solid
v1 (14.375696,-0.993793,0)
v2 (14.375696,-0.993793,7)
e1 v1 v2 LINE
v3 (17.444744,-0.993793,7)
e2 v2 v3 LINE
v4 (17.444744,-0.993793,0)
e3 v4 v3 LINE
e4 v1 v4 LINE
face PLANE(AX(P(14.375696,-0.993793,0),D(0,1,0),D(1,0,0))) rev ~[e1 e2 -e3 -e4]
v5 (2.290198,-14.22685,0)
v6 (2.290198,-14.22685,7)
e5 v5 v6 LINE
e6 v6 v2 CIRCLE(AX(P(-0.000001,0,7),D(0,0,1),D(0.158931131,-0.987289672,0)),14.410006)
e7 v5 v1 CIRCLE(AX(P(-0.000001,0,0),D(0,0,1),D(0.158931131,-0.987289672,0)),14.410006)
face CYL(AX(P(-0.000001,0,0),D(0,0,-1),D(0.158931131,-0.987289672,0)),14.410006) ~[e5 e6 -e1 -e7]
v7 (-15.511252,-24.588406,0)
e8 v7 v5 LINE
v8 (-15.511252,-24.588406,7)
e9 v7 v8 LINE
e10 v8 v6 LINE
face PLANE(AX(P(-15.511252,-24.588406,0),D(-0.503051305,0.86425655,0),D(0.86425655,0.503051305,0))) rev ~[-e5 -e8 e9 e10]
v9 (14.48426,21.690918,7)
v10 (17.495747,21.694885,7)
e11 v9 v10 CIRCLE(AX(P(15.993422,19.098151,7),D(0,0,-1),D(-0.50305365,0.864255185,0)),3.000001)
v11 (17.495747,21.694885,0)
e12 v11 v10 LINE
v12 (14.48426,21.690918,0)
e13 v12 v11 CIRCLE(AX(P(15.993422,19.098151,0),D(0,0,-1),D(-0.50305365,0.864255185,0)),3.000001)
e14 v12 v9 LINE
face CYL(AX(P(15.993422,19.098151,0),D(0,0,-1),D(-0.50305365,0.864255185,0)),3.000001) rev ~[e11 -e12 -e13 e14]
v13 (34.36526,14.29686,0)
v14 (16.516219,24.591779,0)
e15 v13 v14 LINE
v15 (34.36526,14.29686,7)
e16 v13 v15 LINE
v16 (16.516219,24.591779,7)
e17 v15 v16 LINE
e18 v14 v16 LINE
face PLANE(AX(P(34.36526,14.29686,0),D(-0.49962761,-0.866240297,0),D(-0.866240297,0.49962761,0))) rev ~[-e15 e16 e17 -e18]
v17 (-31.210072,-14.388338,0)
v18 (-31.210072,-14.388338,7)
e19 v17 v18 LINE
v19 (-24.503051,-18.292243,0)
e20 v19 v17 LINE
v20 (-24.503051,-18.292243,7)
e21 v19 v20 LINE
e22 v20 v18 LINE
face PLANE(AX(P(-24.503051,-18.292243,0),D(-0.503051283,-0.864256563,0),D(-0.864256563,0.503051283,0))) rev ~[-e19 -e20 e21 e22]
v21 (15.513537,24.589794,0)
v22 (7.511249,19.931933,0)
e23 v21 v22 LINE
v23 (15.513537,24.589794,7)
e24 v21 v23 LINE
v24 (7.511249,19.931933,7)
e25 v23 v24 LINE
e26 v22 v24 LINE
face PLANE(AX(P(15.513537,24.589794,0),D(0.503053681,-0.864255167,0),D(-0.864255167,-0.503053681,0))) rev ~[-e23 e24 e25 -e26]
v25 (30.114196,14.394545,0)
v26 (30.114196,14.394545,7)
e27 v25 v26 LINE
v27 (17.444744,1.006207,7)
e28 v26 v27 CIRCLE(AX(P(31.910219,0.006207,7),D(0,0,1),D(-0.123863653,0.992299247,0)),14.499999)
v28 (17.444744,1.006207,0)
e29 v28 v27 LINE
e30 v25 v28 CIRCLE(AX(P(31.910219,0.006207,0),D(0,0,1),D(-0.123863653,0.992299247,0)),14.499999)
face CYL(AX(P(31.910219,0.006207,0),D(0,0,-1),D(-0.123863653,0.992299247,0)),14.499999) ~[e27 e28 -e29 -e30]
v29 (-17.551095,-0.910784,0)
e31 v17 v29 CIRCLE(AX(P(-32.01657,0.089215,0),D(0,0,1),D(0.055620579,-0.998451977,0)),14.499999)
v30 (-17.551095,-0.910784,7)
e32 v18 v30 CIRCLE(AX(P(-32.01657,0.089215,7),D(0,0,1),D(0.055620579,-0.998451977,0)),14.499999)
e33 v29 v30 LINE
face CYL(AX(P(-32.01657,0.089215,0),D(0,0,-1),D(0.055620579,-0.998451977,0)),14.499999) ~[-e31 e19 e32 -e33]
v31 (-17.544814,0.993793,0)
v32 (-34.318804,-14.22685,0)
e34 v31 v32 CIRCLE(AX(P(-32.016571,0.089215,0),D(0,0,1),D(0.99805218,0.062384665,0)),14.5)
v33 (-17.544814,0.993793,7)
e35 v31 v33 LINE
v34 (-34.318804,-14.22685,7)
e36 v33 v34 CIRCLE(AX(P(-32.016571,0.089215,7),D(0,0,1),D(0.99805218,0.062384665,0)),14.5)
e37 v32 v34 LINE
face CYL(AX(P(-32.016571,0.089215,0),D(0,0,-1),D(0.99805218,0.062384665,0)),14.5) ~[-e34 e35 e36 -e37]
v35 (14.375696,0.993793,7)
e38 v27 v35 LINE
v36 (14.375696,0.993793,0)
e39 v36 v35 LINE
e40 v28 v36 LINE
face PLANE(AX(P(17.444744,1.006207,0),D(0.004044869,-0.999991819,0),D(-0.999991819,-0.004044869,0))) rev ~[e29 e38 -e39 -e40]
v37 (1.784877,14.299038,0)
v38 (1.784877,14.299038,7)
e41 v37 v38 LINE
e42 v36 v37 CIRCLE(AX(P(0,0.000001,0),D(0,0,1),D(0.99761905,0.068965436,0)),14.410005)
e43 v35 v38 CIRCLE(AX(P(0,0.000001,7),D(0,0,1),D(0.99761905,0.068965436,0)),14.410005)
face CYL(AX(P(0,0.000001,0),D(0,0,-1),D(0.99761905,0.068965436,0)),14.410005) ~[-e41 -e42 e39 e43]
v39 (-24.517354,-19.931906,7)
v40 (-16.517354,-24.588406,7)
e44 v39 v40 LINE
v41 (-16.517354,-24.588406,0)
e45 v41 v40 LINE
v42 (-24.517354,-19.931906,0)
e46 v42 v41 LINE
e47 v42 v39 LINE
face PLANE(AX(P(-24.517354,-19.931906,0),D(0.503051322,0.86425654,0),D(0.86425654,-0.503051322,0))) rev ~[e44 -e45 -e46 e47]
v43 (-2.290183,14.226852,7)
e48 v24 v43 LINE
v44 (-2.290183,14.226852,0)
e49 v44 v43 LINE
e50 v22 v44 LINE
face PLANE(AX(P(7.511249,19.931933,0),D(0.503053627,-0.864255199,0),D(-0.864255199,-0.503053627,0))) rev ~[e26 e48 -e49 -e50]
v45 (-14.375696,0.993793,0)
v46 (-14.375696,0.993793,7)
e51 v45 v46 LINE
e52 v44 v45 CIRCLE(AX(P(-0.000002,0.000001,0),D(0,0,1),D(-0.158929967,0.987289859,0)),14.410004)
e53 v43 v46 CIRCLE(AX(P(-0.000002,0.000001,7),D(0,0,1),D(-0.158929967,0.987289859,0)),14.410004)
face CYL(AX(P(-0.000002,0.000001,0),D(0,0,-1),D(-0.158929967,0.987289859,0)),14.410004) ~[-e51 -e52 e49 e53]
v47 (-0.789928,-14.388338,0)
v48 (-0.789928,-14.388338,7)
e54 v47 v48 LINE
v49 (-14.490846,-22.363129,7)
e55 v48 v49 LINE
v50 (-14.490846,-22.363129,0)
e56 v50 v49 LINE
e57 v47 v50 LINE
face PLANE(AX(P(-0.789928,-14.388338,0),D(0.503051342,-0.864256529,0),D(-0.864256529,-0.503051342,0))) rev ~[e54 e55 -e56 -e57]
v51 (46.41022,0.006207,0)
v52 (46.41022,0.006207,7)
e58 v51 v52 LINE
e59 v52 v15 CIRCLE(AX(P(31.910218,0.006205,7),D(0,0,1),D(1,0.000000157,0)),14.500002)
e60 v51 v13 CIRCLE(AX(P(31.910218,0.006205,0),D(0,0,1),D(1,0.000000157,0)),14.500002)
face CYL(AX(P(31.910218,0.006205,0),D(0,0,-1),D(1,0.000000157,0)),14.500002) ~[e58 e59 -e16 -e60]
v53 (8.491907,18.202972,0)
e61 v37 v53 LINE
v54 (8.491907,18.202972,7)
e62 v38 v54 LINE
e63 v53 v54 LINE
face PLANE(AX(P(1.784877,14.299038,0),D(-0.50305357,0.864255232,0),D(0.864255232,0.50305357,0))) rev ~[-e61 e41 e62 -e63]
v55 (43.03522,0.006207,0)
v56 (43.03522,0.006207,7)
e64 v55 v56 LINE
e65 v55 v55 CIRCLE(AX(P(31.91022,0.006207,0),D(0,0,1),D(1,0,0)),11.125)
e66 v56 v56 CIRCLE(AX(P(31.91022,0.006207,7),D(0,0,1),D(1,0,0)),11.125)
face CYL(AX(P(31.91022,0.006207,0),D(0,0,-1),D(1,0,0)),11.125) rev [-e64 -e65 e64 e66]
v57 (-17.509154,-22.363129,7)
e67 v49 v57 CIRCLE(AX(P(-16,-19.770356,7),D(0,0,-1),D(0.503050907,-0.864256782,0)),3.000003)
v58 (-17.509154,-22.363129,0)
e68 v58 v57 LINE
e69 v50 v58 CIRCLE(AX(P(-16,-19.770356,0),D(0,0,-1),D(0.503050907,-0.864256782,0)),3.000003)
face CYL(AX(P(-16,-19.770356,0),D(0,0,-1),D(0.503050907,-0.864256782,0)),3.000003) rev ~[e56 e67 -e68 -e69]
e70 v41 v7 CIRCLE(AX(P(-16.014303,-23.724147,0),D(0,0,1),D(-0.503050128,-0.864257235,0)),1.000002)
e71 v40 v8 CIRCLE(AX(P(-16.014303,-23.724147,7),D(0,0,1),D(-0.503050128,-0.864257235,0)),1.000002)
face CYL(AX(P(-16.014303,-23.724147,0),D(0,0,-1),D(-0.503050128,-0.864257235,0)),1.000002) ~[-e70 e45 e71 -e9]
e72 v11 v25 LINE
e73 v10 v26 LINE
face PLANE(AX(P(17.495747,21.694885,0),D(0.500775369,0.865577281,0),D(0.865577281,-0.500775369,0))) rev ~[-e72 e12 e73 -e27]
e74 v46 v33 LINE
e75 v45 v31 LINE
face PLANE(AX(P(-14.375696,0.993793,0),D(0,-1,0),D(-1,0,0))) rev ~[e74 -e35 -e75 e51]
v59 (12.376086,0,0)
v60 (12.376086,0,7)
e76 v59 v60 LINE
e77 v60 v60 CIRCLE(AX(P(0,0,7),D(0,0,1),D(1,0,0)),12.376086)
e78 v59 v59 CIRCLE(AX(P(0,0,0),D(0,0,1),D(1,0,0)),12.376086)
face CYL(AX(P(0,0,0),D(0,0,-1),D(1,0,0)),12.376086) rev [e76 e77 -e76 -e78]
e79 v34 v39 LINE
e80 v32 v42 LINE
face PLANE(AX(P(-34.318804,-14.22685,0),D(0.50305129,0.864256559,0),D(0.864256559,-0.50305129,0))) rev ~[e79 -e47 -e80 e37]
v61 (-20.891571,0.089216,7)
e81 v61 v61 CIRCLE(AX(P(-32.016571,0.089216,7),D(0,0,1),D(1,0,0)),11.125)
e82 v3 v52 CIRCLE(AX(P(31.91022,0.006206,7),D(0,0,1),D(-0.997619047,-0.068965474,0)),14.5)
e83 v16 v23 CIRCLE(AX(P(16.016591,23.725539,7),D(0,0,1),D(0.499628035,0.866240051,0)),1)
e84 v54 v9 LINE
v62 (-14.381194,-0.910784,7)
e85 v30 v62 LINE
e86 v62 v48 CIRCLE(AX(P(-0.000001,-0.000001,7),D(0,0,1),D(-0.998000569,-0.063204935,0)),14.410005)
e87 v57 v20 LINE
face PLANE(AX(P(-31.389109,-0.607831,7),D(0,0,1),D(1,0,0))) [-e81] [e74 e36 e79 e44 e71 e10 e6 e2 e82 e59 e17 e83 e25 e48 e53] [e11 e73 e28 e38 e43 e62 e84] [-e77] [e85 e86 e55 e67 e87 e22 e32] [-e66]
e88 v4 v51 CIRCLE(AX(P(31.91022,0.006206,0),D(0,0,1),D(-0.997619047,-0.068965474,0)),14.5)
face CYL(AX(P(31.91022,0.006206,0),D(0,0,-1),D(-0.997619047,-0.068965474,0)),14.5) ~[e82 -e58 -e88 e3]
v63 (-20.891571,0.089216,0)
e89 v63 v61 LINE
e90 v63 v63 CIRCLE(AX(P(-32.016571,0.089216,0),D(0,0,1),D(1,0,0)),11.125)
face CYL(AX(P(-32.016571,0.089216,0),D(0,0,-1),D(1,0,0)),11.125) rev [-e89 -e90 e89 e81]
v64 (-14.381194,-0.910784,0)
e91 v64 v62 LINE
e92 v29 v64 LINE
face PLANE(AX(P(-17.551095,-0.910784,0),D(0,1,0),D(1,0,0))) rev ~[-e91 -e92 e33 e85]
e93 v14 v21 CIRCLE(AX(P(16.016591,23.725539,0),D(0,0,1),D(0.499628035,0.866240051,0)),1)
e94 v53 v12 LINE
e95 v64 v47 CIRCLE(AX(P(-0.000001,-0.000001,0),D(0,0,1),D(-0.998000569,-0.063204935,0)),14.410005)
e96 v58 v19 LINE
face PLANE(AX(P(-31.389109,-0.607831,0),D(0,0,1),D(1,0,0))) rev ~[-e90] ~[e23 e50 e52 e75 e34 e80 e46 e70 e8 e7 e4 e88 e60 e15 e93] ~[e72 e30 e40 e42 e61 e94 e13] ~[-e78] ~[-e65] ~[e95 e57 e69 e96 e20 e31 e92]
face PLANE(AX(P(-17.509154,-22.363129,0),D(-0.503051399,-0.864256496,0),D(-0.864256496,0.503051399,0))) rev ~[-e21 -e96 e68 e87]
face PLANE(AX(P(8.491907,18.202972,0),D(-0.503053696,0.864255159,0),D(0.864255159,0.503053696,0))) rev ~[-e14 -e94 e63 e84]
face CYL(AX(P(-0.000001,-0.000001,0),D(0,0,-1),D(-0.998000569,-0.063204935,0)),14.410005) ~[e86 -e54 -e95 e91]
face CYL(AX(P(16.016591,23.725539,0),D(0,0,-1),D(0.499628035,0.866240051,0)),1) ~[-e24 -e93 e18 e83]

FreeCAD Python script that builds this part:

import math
import FreeCAD as App
import Part
import Sketcher

V = App.Vector
Q = App.Units.Quantity

doc = App.newDocument("Part")
body = doc.addObject("PartDesign::Body", "Body")

# Sketch on XY plane
sketch1 = body.newObject("Sketcher::SketchObject", "Sketch")
sketch1.AttachmentSupport = (doc.getObject("XY_Plane"), [""])
sketch1.MapMode = "FlatFace"
sketch1.addGeometry(Part.ArcOfCircle(Part.Circle(V(-32, 0.1, 0), V(0, 0, 1), 14.5), math.radians(4), math.radians(261)), False)
sketch1.addGeometry(Part.LineSegment(V(-34.3, -14.2, 0), V(-24.5, -19.9, 0)), False)
sketch1.addGeometry(Part.LineSegment(V(-24.5, -19.9, 0), V(-16.5, -24.6, 0)), False)
sketch1.addGeometry(Part.ArcOfCircle(Part.Circle(V(-16, -23.7, 0), V(0, 0, 1), 1), math.radians(-120), math.radians(-60)), False)
sketch1.addGeometry(Part.LineSegment(V(-15.5, -24.6, 0), V(2.3, -14.2, 0)), False)
sketch1.addGeometry(Part.ArcOfCircle(Part.Circle(V(0, 0, 0), V(0, 0, 1), 14.4), math.radians(-81), math.radians(-4)), False)
sketch1.addGeometry(Part.LineSegment(V(14.4, -1, 0), V(17.4, -1, 0)), False)
sketch1.addGeometry(Part.ArcOfCircle(Part.Circle(V(31.9, 0, 0), V(0, 0, 1), 14.5), math.radians(-176), math.radians(0)), False)
sketch1.addGeometry(Part.ArcOfCircle(Part.Circle(V(31.9, 0, 0), V(0, 0, 1), 14.5), math.radians(0), math.radians(80)), False)
sketch1.addGeometry(Part.LineSegment(V(34.4, 14.3, 0), V(16.5, 24.6, 0)), False)
sketch1.addGeometry(Part.ArcOfCircle(Part.Circle(V(16, 23.7, 0), V(0, 0, 1), 1), math.radians(60), math.radians(120)), False)
sketch1.addGeometry(Part.LineSegment(V(15.5, 24.6, 0), V(7.5, 19.9, 0)), False)
sketch1.addGeometry(Part.LineSegment(V(7.5, 19.9, 0), V(-2.3, 14.2, 0)), False)
sketch1.addGeometry(Part.ArcOfCircle(Part.Circle(V(0, 0, 0), V(0, 0, 1), 14.4), math.radians(99), math.radians(176)), False)
sketch1.addGeometry(Part.LineSegment(V(-14.4, 1, 0), V(-17.5, 1, 0)), False)
sketch1.addGeometry(Part.ArcOfCircle(Part.Circle(V(0, 0, 0), V(0, 0, 1), 14.4), math.radians(-176), math.radians(-93)), False)
sketch1.addGeometry(Part.LineSegment(V(-0.8, -14.4, 0), V(-14.5, -22.4, 0)), False)
sketch1.addGeometry(Part.ArcOfCircle(Part.Circle(V(-16, -19.8, 0), V(0, 0, 1), 3), math.radians(-120), math.radians(-60)), False)
sketch1.addGeometry(Part.LineSegment(V(-17.5, -22.4, 0), V(-24.5, -18.3, 0)), False)
sketch1.addGeometry(Part.LineSegment(V(-24.5, -18.3, 0), V(-31.2, -14.4, 0)), False)
sketch1.addGeometry(Part.ArcOfCircle(Part.Circle(V(-32, 0.1, 0), V(0, 0, 1), 14.5), math.radians(-87), math.radians(-4)), False)
sketch1.addGeometry(Part.LineSegment(V(-17.6, -0.9, 0), V(-14.4, -0.9, 0)), False)
sketch1.addGeometry(Part.ArcOfCircle(Part.Circle(V(31.9, 0, 0), V(0, 0, 1), 14.5), math.radians(97), math.radians(176)), False)
sketch1.addGeometry(Part.LineSegment(V(17.4, 1, 0), V(14.4, 1, 0)), False)
sketch1.addGeometry(Part.ArcOfCircle(Part.Circle(V(0, 0, 0), V(0, 0, 1), 14.4), math.radians(4), math.radians(83)), False)
sketch1.addGeometry(Part.LineSegment(V(1.8, 14.3, 0), V(8.5, 18.2, 0)), False)
sketch1.addGeometry(Part.LineSegment(V(8.5, 18.2, 0), V(14.5, 21.7, 0)), False)
sketch1.addGeometry(Part.ArcOfCircle(Part.Circle(V(16, 19.1, 0), V(0, 0, 1), 3), math.radians(60), math.radians(120)), False)
sketch1.addGeometry(Part.LineSegment(V(17.5, 21.7, 0), V(30.1, 14.4, 0)), False)
sketch1.addGeometry(Part.Circle(V(-32, 0.1, 0), V(0, 0, 1), 11.1), False)
sketch1.addGeometry(Part.Circle(V(0, 0, 0), V(0, 0, 1), 12.4), False)
sketch1.addGeometry(Part.Circle(V(31.9, 0, 0), V(0, 0, 1), 11.1), False)
sketch1.addConstraint(Sketcher.Constraint("Coincident", 0, 2, 1, 1))
sketch1.addConstraint(Sketcher.Constraint("Coincident", 1, 2, 2, 1))
sketch1.addConstraint(Sketcher.Constraint("Tangent", 2, 2, 3, 1))
sketch1.addConstraint(Sketcher.Constraint("Tangent", 3, 2, 4, 1))
sketch1.addConstraint(Sketcher.Constraint("Coincident", 4, 2, 5, 1))
sketch1.addConstraint(Sketcher.Constraint("Coincident", 5, 2, 6, 1))
sketch1.addConstraint(Sketcher.Constraint("Coincident", 6, 2, 7, 1))
sketch1.addConstraint(Sketcher.Constraint("Tangent", 7, 2, 8, 1))
sketch1.addConstraint(Sketcher.Constraint("Coincident", 8, 2, 9, 1))
sketch1.addConstraint(Sketcher.Constraint("Tangent", 9, 2, 10, 1))
sketch1.addConstraint(Sketcher.Constraint("Tangent", 10, 2, 11, 1))
sketch1.addConstraint(Sketcher.Constraint("Coincident", 11, 2, 12, 1))
sketch1.addConstraint(Sketcher.Constraint("Coincident", 12, 2, 13, 1))
sketch1.addConstraint(Sketcher.Constraint("Coincident", 13, 2, 14, 1))
sketch1.addConstraint(Sketcher.Constraint("Coincident", 14, 2, 0, 1))
sketch1.addConstraint(Sketcher.Constraint("Coincident", 15, 2, 16, 1))
sketch1.addConstraint(Sketcher.Constraint("Tangent", 16, 2, 17, 2))
sketch1.addConstraint(Sketcher.Constraint("Tangent", 17, 1, 18, 1))
sketch1.addConstraint(Sketcher.Constraint("Coincident", 18, 2, 19, 1))
sketch1.addConstraint(Sketcher.Constraint("Coincident", 19, 2, 20, 1))
sketch1.addConstraint(Sketcher.Constraint("Coincident", 20, 2, 21, 1))
sketch1.addConstraint(Sketcher.Constraint("Coincident", 21, 2, 15, 1))
sketch1.addConstraint(Sketcher.Constraint("Coincident", 22, 2, 23, 1))
sketch1.addConstraint(Sketcher.Constraint("Coincident", 23, 2, 24, 1))
sketch1.addConstraint(Sketcher.Constraint("Coincident", 24, 2, 25, 1))
sketch1.addConstraint(Sketcher.Constraint("Coincident", 25, 2, 26, 1))
sketch1.addConstraint(Sketcher.Constraint("Tangent", 26, 2, 27, 2))
sketch1.addConstraint(Sketcher.Constraint("Tangent", 27, 1, 28, 1))
sketch1.addConstraint(Sketcher.Constraint("Coincident", 28, 2, 22, 1))
sketch1.addConstraint(Sketcher.Constraint("Horizontal", 6))
sketch1.addConstraint(Sketcher.Constraint("Horizontal", 14))
sketch1.addConstraint(Sketcher.Constraint("Horizontal", 21))
sketch1.addConstraint(Sketcher.Constraint("Coincident", 5, 3, -1, 1))
sketch1.addConstraint(Sketcher.Constraint("Coincident", 13, 3, -1, 1))
sketch1.addConstraint(Sketcher.Constraint("Coincident", 15, 3, -1, 1))
sketch1.addConstraint(Sketcher.Constraint("Coincident", 24, 3, -1, 1))
sketch1.addConstraint(Sketcher.Constraint("Coincident", 30, 3, -1, 1))
sketch1.addConstraint(Sketcher.Constraint("Coincident", 20, 3, 0, 3))
sketch1.addConstraint(Sketcher.Constraint("Coincident", 22, 3, 7, 3))
sketch1.addConstraint(Sketcher.Constraint("Coincident", 29, 3, 0, 3))
sketch1.addConstraint(Sketcher.Constraint("Coincident", 31, 3, 7, 3))
sketch1.addConstraint(Sketcher.Constraint("Equal", 0, 7))
sketch1.addConstraint(Sketcher.Constraint("Equal", 0, 8))
sketch1.addConstraint(Sketcher.Constraint("Equal", 3, 10))
sketch1.addConstraint(Sketcher.Constraint("Equal", 13, 15))
sketch1.addConstraint(Sketcher.Constraint("Equal", 7, 20))
sketch1.addConstraint(Sketcher.Constraint("Equal", 20, 22))
sketch1.addConstraint(Sketcher.Constraint("Equal", 15, 24))
sketch1.addConstraint(Sketcher.Constraint("Equal", 17, 27))
sketch1.addConstraint(Sketcher.Constraint("Equal", 29, 31))
sketch1.addConstraint(Sketcher.Constraint("Symmetric", 5, 2, 13, 2, -1, 1))
sketch1.addConstraint(Sketcher.Constraint("Parallel", 1, 2))
sketch1.addConstraint(Sketcher.Constraint("Parallel", 11, 12))
sketch1.addConstraint(Sketcher.Constraint("Parallel", 4, 16))
sketch1.addConstraint(Sketcher.Constraint("Parallel", 2, 18))
sketch1.addConstraint(Sketcher.Constraint("Parallel", 18, 19))
sketch1.addConstraint(Sketcher.Constraint("Parallel", 12, 25))
sketch1.addConstraint(Sketcher.Constraint("Parallel", 25, 26))
sketch1.addConstraint(Sketcher.Constraint("Horizontal", 2, 2, 3, 2))
sketch1.addConstraint(Sketcher.Constraint("Horizontal", 0, 2, 4, 2))
sketch1.addConstraint(Sketcher.Constraint("Horizontal", 31, 3, 7, 2))
sketch1.addConstraint(Sketcher.Constraint("Horizontal", 15, 2, 19, 2))
sketch1.addConstraint(Sketcher.Constraint("Horizontal", 14, 2, 23, 2))
sketch1.addConstraint(Sketcher.Constraint("Vertical", 6, 2, 22, 2))
sketch1.addConstraint(Sketcher.Constraint("Radius", 3, Q("1.000002 mm")))
sketch1.addConstraint(Sketcher.Constraint("Radius", 27, Q("3.000001 mm")))
sketch1.addConstraint(Sketcher.Constraint("Radius", 0, Q("14.5 mm")))
sketch1.addConstraint(Sketcher.Constraint("Diameter", 29, Q("22.25 mm")))
sketch1.addConstraint(Sketcher.Constraint("DistanceX", 17, 3, -1, 1, Q("16 mm")))
sketch1.addConstraint(Sketcher.Constraint("DistanceX", 1, 2, 2, 2, Q("8 mm")))
sketch1.addConstraint(Sketcher.Constraint("DistanceY", 6, 2, 22, 3, Q("1 mm")))
sketch1.addConstraint(Sketcher.Constraint("DistanceY", 20, 2, 20, 3, Q("0.999999 mm")))
sketch1.addConstraint(Sketcher.Constraint("Diameter", 30, Q("24.752172 mm")))
sketch1.addConstraint(Sketcher.Constraint("DistanceX", 21, 1, 21, 2, Q("3.169901 mm")))
sketch1.addConstraint(Sketcher.Constraint("Radius", 5, Q("14.410006 mm")))
sketch1.addConstraint(Sketcher.Constraint("Distance", 12, Q("11.3409 mm")))
sketch1.addConstraint(Sketcher.Constraint("DistanceX", 6, 1, 6, 2, Q("3.069048 mm")))
sketch1.addConstraint(Sketcher.Constraint("DistanceX", -1, 1, 4, 2, Q("2.290198 mm")))
sketch1.addConstraint(Sketcher.Constraint("DistanceX", 27, 3, 7, 3, Q("15.916799 mm")))
sketch1.addConstraint(Sketcher.Constraint("DistanceY", 2, 2, 1, 2, Q("4.6565 mm")))
sketch1.addConstraint(Sketcher.Constraint("DistanceX", 20, 3, 19, 2, Q("0.806498 mm")))
sketch1.addConstraint(Sketcher.Constraint("DistanceX", 20, 2, 13, 2, Q("3.175399 mm")))
sketch1.addConstraint(Sketcher.Constraint("Distance", 19, Q("7.760451 mm")))
sketch1.addConstraint(Sketcher.Constraint("DistanceX", -1, 1, 10, 3, Q("16.016591 mm")))
sketch1.addConstraint(Sketcher.Constraint("DistanceY", -1, 1, 10, 3, Q("23.725539 mm")))
sketch1.addConstraint(Sketcher.Constraint("DistanceY", -1, 1, 27, 3, Q("19.098151 mm")))
sketch1.addConstraint(Sketcher.Constraint("DistanceX", -1, 1, 8, 2, Q("34.36526 mm")))
sketch1.addConstraint(Sketcher.Constraint("DistanceX", -1, 1, 11, 2, Q("7.511249 mm")))
sketch1.addConstraint(Sketcher.Constraint("DistanceY", -1, 1, 25, 2, Q("18.202972 mm")))
sketch1.addConstraint(Sketcher.Constraint("DistanceX", 9, 2, 27, 1, Q("0.979528 mm")))
pad1 = body.newObject("PartDesign::Pad", "Pad")
pad1.Profile = sketch1
pad1.Length = 7

doc.recompute()
